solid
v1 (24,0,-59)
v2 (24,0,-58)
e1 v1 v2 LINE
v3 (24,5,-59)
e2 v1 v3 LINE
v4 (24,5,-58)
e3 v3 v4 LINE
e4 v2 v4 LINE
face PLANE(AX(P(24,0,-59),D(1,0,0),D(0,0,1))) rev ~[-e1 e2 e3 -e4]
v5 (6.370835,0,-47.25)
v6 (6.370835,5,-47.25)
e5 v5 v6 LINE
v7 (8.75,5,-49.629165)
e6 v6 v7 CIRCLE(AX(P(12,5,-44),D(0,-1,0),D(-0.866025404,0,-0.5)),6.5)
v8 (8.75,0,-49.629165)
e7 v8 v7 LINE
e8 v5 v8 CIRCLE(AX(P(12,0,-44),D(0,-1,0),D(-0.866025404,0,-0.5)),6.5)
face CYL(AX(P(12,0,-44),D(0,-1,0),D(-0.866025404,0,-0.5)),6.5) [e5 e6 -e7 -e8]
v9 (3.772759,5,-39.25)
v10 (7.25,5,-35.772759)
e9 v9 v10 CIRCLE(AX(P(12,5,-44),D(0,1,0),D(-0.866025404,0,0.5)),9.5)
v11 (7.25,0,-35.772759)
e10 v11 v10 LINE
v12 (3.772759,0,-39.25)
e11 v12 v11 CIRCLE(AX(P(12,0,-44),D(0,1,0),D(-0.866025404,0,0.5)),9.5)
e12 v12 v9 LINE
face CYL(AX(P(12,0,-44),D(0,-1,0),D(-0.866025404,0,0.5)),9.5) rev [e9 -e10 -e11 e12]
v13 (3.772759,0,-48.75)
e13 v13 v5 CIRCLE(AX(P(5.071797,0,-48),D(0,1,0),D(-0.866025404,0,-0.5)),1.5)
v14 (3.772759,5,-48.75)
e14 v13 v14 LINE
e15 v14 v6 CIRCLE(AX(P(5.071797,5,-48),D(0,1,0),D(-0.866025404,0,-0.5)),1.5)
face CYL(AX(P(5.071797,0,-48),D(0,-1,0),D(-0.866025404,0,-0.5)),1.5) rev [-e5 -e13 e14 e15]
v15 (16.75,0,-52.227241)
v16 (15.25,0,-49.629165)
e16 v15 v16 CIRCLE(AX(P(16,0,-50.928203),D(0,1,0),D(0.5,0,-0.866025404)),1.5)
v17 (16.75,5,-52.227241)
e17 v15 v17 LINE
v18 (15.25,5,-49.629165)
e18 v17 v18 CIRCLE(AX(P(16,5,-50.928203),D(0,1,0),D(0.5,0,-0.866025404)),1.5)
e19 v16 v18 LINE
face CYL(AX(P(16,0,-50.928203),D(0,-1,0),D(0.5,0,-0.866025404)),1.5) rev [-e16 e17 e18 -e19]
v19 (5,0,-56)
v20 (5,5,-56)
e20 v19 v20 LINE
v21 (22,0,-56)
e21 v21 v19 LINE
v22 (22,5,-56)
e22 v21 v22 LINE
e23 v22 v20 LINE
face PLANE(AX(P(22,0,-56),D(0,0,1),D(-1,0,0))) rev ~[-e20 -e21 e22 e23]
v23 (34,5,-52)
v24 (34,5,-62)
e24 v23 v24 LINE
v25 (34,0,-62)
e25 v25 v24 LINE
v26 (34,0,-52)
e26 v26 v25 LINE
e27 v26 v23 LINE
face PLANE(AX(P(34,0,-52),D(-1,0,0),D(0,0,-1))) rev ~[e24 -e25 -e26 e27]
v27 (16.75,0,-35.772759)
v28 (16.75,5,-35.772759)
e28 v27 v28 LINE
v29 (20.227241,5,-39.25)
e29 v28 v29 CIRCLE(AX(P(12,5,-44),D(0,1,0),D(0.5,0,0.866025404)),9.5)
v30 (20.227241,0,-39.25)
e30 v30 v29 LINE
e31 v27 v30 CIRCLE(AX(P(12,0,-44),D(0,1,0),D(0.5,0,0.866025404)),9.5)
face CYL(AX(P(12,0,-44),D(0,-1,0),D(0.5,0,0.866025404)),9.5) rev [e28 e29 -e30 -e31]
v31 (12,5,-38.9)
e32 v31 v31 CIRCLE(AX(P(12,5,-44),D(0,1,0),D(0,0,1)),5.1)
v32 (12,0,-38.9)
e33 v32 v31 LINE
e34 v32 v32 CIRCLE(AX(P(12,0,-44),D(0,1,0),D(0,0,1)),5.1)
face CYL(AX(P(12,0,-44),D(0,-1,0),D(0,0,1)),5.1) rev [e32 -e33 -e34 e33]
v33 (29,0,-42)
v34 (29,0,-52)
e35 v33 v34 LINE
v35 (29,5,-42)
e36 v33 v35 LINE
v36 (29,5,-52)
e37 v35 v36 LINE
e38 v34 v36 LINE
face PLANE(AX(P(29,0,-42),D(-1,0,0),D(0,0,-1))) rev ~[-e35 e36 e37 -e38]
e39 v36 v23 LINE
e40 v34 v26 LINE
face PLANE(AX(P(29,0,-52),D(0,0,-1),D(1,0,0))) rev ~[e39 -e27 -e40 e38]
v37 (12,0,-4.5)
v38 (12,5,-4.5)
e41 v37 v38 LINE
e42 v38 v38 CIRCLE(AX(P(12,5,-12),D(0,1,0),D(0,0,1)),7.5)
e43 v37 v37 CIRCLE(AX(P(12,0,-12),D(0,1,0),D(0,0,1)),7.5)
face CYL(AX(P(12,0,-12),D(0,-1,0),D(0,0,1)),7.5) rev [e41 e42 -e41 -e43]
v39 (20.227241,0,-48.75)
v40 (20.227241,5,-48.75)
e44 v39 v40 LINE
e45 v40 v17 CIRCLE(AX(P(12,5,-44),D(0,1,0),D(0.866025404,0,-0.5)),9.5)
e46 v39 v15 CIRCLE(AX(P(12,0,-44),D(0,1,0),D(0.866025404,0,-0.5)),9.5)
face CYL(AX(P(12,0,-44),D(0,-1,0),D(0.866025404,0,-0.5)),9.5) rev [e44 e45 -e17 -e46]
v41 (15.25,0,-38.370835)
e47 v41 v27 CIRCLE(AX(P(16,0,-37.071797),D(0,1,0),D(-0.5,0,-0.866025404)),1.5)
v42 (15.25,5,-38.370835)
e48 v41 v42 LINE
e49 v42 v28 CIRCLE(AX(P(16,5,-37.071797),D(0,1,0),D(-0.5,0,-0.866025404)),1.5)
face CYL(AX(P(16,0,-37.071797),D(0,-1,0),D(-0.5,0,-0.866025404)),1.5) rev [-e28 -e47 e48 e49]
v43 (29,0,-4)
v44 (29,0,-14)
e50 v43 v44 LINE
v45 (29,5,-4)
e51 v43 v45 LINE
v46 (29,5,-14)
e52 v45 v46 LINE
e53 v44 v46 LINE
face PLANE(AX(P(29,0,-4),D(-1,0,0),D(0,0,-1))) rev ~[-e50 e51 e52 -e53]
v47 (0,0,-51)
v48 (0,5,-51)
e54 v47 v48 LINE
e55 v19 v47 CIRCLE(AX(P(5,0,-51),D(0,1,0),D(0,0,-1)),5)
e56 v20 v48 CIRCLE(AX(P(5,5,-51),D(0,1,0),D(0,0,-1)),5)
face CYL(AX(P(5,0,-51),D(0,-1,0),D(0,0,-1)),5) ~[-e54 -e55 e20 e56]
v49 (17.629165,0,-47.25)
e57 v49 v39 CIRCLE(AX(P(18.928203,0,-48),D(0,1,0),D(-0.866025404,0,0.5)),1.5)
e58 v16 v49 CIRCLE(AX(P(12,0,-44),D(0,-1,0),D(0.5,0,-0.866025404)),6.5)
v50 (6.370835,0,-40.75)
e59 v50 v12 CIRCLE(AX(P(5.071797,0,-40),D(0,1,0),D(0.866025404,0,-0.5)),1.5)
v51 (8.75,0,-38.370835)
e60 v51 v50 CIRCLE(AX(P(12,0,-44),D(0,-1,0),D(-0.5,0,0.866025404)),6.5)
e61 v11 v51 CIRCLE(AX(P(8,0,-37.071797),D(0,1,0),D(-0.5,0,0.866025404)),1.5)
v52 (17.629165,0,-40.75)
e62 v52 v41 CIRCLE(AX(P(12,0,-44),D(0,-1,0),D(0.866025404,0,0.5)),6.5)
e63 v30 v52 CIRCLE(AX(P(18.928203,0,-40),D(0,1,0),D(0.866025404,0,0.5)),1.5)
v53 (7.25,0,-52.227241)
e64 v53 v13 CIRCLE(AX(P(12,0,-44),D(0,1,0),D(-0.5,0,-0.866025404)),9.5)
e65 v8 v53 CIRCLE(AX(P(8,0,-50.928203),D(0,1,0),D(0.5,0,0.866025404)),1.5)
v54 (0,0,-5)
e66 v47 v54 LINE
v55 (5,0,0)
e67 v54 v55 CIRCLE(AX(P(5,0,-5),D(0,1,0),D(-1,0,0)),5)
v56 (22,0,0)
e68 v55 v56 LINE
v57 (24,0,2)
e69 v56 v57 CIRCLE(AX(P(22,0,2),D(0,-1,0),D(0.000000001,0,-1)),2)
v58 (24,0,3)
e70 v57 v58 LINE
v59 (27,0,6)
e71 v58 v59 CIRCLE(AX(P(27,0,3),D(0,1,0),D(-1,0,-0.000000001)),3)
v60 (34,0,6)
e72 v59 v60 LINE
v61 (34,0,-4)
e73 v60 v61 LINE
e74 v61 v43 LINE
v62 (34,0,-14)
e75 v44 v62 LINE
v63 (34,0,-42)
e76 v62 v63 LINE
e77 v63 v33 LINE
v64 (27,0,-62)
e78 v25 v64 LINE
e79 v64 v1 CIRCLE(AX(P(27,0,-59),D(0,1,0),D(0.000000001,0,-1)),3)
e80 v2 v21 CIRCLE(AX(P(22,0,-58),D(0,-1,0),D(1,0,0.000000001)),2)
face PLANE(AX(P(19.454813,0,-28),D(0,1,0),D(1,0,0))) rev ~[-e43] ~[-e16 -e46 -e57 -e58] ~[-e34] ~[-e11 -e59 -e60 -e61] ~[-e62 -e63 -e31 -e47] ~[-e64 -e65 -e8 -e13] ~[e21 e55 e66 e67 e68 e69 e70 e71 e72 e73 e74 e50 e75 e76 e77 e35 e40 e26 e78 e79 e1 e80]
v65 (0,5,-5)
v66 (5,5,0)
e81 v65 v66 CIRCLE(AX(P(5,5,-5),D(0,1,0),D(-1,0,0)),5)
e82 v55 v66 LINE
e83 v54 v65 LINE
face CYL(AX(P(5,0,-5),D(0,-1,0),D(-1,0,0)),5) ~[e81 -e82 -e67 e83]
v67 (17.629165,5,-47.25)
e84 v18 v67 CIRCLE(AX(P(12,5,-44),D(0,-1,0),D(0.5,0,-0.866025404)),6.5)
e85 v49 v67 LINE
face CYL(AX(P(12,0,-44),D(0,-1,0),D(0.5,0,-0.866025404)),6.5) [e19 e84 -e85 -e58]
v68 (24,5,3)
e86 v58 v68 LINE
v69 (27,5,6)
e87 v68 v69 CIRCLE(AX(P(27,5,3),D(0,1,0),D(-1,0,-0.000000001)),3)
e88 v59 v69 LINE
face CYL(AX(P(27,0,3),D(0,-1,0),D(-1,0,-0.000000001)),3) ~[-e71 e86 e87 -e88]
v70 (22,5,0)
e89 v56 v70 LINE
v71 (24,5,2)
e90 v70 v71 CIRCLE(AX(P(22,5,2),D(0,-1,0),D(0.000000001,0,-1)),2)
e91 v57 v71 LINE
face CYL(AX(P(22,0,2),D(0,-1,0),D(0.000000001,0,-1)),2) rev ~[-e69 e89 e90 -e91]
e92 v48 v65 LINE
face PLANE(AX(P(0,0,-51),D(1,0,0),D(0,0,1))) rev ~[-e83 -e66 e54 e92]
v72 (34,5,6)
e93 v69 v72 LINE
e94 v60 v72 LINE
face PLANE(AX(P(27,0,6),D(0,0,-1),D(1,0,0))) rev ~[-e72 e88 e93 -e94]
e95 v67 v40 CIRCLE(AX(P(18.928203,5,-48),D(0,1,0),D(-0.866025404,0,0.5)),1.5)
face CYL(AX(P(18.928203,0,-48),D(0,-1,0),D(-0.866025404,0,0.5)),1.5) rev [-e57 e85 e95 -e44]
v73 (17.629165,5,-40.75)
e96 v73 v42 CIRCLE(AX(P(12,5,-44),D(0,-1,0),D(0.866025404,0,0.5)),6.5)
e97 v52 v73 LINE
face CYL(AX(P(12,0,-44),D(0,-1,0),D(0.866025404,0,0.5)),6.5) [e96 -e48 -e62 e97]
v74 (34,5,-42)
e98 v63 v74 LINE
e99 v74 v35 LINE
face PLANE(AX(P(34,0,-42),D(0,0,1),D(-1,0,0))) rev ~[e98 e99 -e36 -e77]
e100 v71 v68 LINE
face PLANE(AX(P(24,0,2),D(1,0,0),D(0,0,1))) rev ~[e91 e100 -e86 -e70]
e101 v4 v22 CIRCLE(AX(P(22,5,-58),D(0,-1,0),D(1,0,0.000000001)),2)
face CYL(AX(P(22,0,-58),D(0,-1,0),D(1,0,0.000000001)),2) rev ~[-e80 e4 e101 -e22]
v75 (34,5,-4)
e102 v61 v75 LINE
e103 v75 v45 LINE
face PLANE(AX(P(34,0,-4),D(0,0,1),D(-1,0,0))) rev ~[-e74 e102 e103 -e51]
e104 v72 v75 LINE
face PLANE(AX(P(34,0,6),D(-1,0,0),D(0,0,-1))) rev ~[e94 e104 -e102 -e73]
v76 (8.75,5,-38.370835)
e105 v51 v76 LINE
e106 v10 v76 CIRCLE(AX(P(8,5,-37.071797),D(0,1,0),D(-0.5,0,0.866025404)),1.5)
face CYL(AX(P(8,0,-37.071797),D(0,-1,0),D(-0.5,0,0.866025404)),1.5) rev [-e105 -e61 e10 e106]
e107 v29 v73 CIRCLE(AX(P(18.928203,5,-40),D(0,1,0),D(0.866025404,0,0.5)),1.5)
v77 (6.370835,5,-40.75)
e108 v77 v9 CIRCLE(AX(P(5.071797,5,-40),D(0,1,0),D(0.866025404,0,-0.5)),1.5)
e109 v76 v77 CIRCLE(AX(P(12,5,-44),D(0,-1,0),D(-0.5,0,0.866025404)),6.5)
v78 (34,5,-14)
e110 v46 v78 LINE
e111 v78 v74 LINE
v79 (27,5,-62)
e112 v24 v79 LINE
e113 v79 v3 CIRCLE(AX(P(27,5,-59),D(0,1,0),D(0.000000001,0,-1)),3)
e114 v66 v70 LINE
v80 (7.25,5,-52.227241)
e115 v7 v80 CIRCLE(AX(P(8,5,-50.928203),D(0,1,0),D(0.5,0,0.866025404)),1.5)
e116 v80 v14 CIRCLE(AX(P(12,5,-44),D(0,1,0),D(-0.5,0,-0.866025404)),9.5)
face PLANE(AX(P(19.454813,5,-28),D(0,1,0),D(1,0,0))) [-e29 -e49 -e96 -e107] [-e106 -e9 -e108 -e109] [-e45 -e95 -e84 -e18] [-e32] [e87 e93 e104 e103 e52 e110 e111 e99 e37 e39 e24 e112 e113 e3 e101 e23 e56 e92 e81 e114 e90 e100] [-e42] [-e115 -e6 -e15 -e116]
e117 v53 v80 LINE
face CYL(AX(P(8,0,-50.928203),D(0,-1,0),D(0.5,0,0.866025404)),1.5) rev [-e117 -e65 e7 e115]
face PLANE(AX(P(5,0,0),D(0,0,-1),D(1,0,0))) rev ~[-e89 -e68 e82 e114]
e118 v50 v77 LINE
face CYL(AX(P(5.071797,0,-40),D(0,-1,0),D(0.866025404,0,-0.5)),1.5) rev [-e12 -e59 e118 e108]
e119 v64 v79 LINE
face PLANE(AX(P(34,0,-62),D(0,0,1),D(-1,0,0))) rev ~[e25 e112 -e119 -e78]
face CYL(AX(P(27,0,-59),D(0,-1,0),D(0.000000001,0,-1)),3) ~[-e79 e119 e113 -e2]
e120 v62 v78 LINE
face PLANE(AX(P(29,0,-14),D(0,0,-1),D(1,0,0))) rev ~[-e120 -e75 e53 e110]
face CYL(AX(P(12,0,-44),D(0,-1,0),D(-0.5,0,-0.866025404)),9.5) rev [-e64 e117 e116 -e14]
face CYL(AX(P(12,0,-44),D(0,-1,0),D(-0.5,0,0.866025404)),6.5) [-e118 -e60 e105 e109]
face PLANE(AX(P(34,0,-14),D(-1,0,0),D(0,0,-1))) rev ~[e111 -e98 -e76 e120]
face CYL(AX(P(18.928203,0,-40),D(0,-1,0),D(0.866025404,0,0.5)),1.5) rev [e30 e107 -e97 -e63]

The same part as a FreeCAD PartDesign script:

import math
import FreeCAD as App
import Part
import Sketcher

doc = App.newDocument("Part")
params = doc.addObject("Spreadsheet::Sheet", "Params")
for row, (alias, value) in enumerate([
    ("sketch1_diameter", "15 mm"),
    ("sketch1_radius", "2 mm"),
    ("sketch1_radius2", "3 mm"),
    ("sketch1_radius3", "5 mm"),
    ("sketch1_diameter2", "10.2 mm"),
    ("pad1_length", "5 mm"),
], start=1):
    params.set(f"A{row}", alias)
    params.set(f"B{row}", "=" + value)
    params.setAlias(f"B{row}", alias)

body = doc.addObject("PartDesign::Body", "Body")

sketch1 = body.newObject("Sketcher::SketchObject", "Sketch")
sketch1.AttachmentSupport = (doc.getObject("XZ_Plane"), [""])
sketch1.MapMode = "FlatFace"
sketch1.addGeometry(Part.LineSegment(App.Vector(5, 0, 0), App.Vector(22, 0, 0)), False)
sketch1.addGeometry(Part.ArcOfCircle(Part.Circle(App.Vector(22, 2, 0), App.Vector(0, 0, 1), 2), math.radians(-90), math.radians(0)), False)
sketch1.addGeometry(Part.LineSegment(App.Vector(24, 2, 0), App.Vector(24, 3, 0)), False)
sketch1.addGeometry(Part.ArcOfCircle(Part.Circle(App.Vector(27, 3, 0), App.Vector(0, 0, 1), 3), math.radians(90), math.radians(180)), False)
sketch1.addGeometry(Part.LineSegment(App.Vector(27, 6, 0), App.Vector(34, 6, 0)), False)
sketch1.addGeometry(Part.LineSegment(App.Vector(34, 6, 0), App.Vector(34, -4, 0)), False)
sketch1.addGeometry(Part.LineSegment(App.Vector(34, -4, 0), App.Vector(29, -4, 0)), False)
sketch1.addGeometry(Part.LineSegment(App.Vector(29, -4, 0), App.Vector(29, -14, 0)), False)
sketch1.addGeometry(Part.LineSegment(App.Vector(29, -14, 0), App.Vector(34, -14, 0)), False)
sketch1.addGeometry(Part.LineSegment(App.Vector(34, -14, 0), App.Vector(34, -42, 0)), False)
sketch1.addGeometry(Part.LineSegment(App.Vector(34, -42, 0), App.Vector(29, -42, 0)), False)
sketch1.addGeometry(Part.LineSegment(App.Vector(29, -42, 0), App.Vector(29, -52, 0)), False)
sketch1.addGeometry(Part.LineSegment(App.Vector(29, -52, 0), App.Vector(34, -52, 0)), False)
sketch1.addGeometry(Part.LineSegment(App.Vector(34, -52, 0), App.Vector(34, -62, 0)), False)
sketch1.addGeometry(Part.LineSegment(App.Vector(34, -62, 0), App.Vector(27, -62, 0)), False)
sketch1.addGeometry(Part.ArcOfCircle(Part.Circle(App.Vector(27, -59, 0), App.Vector(0, 0, 1), 3), math.radians(180), math.radians(270)), False)
sketch1.addGeometry(Part.LineSegment(App.Vector(24, -59, 0), App.Vector(24, -58, 0)), False)
sketch1.addGeometry(Part.ArcOfCircle(Part.Circle(App.Vector(22, -58, 0), App.Vector(0, 0, 1), 2), math.radians(0), math.radians(90)), False)
sketch1.addGeometry(Part.LineSegment(App.Vector(22, -56, 0), App.Vector(5, -56, 0)), False)
sketch1.addGeometry(Part.ArcOfCircle(Part.Circle(App.Vector(5, -51, 0), App.Vector(0, 0, 1), 5), math.radians(180), math.radians(270)), False)
sketch1.addGeometry(Part.LineSegment(App.Vector(0, -51, 0), App.Vector(0, -5, 0)), False)
sketch1.addGeometry(Part.ArcOfCircle(Part.Circle(App.Vector(5, -5, 0), App.Vector(0, 0, 1), 5), math.radians(90), math.radians(180)), False)
sketch1.addGeometry(Part.Circle(App.Vector(12, -12, 0), App.Vector(0, 0, 1), 7.5), False)
sketch1.addGeometry(Part.ArcOfCircle(Part.Circle(App.Vector(12, -44, 0), App.Vector(0, 0, 1), 9.5), math.radians(120), math.radians(150)), False)
sketch1.addGeometry(Part.ArcOfCircle(Part.Circle(App.Vector(5.1, -40, 0), App.Vector(0, 0, 1), 1.5), math.radians(150), math.radians(330)), False)
sketch1.addGeometry(Part.ArcOfCircle(Part.Circle(App.Vector(12, -44, 0), App.Vector(0, 0, 1), 6.5), math.radians(120), math.radians(150)), False)
sketch1.addGeometry(Part.ArcOfCircle(Part.Circle(App.Vector(8, -37.1, 0), App.Vector(0, 0, 1), 1.5), math.radians(-60), math.radians(120)), False)
sketch1.addGeometry(Part.ArcOfCircle(Part.Circle(App.Vector(12, -44, 0), App.Vector(0, 0, 1), 9.5), math.radians(-150), math.radians(-120)), False)
sketch1.addGeometry(Part.ArcOfCircle(Part.Circle(App.Vector(8, -50.9, 0), App.Vector(0, 0, 1), 1.5), math.radians(-120), math.radians(60)), False)
sketch1.addGeometry(Part.ArcOfCircle(Part.Circle(App.Vector(12, -44, 0), App.Vector(0, 0, 1), 6.5), math.radians(-150), math.radians(-120)), False)
sketch1.addGeometry(Part.ArcOfCircle(Part.Circle(App.Vector(5.1, -48, 0), App.Vector(0, 0, 1), 1.5), math.radians(30), math.radians(210)), False)
sketch1.addGeometry(Part.ArcOfCircle(Part.Circle(App.Vector(12, -44, 0), App.Vector(0, 0, 1), 9.5), math.radians(30), math.radians(60)), False)
sketch1.addGeometry(Part.ArcOfCircle(Part.Circle(App.Vector(16, -37.1, 0), App.Vector(0, 0, 1), 1.5), math.radians(60), math.radians(240)), False)
sketch1.addGeometry(Part.ArcOfCircle(Part.Circle(App.Vector(12, -44, 0), App.Vector(0, 0, 1), 6.5), math.radians(30), math.radians(60)), False)
sketch1.addGeometry(Part.ArcOfCircle(Part.Circle(App.Vector(18.9, -40, 0), App.Vector(0, 0, 1), 1.5), math.radians(-150), math.radians(30)), False)
sketch1.addGeometry(Part.Circle(App.Vector(12, -44, 0), App.Vector(0, 0, 1), 5.1), False)
sketch1.addGeometry(Part.ArcOfCircle(Part.Circle(App.Vector(12, -44, 0), App.Vector(0, 0, 1), 9.5), math.radians(-60), math.radians(-30)), False)
sketch1.addGeometry(Part.ArcOfCircle(Part.Circle(App.Vector(18.9, -48, 0), App.Vector(0, 0, 1), 1.5), math.radians(-30), math.radians(150)), False)
sketch1.addGeometry(Part.ArcOfCircle(Part.Circle(App.Vector(12, -44, 0), App.Vector(0, 0, 1), 6.5), math.radians(-60), math.radians(-30)), False)
sketch1.addGeometry(Part.ArcOfCircle(Part.Circle(App.Vector(16, -50.9, 0), App.Vector(0, 0, 1), 1.5), math.radians(120), math.radians(300)), False)
sketch1.addConstraint(Sketcher.Constraint("Tangent", 0, 2, 1, 1))
sketch1.addConstraint(Sketcher.Constraint("Tangent", 1, 2, 2, 1))
sketch1.addConstraint(Sketcher.Constraint("Tangent", 2, 2, 3, 2))
sketch1.addConstraint(Sketcher.Constraint("Tangent", 3, 1, 4, 1))
sketch1.addConstraint(Sketcher.Constraint("Coincident", 4, 2, 5, 1))
sketch1.addConstraint(Sketcher.Constraint("Coincident", 5, 2, 6, 1))
sketch1.addConstraint(Sketcher.Constraint("Coincident", 6, 2, 7, 1))
sketch1.addConstraint(Sketcher.Constraint("Coincident", 7, 2, 8, 1))
sketch1.addConstraint(Sketcher.Constraint("Coincident", 8, 2, 9, 1))
sketch1.addConstraint(Sketcher.Constraint("Coincident", 9, 2, 10, 1))
sketch1.addConstraint(Sketcher.Constraint("Coincident", 10, 2, 11, 1))
sketch1.addConstraint(Sketcher.Constraint("Coincident", 11, 2, 12, 1))
sketch1.addConstraint(Sketcher.Constraint("Coincident", 12, 2, 13, 1))
sketch1.addConstraint(Sketcher.Constraint("Coincident", 13, 2, 14, 1))
sketch1.addConstraint(Sketcher.Constraint("Tangent", 14, 2, 15, 2))
sketch1.addConstraint(Sketcher.Constraint("Tangent", 15, 1, 16, 1))
sketch1.addConstraint(Sketcher.Constraint("Tangent", 16, 2, 17, 1))
sketch1.addConstraint(Sketcher.Constraint("Tangent", 17, 2, 18, 1))
sketch1.addConstraint(Sketcher.Constraint("Tangent", 18, 2, 19, 2))
sketch1.addConstraint(Sketcher.Constraint("Tangent", 19, 1, 20, 1))
sketch1.addConstraint(Sketcher.Constraint("Tangent", 20, 2, 21, 2))
sketch1.addConstraint(Sketcher.Constraint("Tangent", 21, 1, 0, 1))
sketch1.addConstraint(Sketcher.Constraint("Tangent", 23, 2, 24, 1))
sketch1.addConstraint(Sketcher.Constraint("Tangent", 24, 2, 25, 2))
sketch1.addConstraint(Sketcher.Constraint("Tangent", 25, 1, 26, 1))
sketch1.addConstraint(Sketcher.Constraint("Tangent", 26, 2, 23, 1))
sketch1.addConstraint(Sketcher.Constraint("Tangent", 27, 2, 28, 1))
sketch1.addConstraint(Sketcher.Constraint("Tangent", 28, 2, 29, 2))
sketch1.addConstraint(Sketcher.Constraint("Tangent", 29, 1, 30, 1))
sketch1.addConstraint(Sketcher.Constraint("Tangent", 30, 2, 27, 1))
sketch1.addConstraint(Sketcher.Constraint("Tangent", 31, 2, 32, 1))
sketch1.addConstraint(Sketcher.Constraint("Tangent", 32, 2, 33, 2))
sketch1.addConstraint(Sketcher.Constraint("Tangent", 33, 1, 34, 1))
sketch1.addConstraint(Sketcher.Constraint("Tangent", 34, 2, 31, 1))
sketch1.addConstraint(Sketcher.Constraint("Tangent", 36, 2, 37, 1))
sketch1.addConstraint(Sketcher.Constraint("Tangent", 37, 2, 38, 2))
sketch1.addConstraint(Sketcher.Constraint("Tangent", 38, 1, 39, 1))
sketch1.addConstraint(Sketcher.Constraint("Tangent", 39, 2, 36, 1))
sketch1.addConstraint(Sketcher.Constraint("Horizontal", 0))
sketch1.addConstraint(Sketcher.Constraint("Vertical", 2))
sketch1.addConstraint(Sketcher.Constraint("Horizontal", 4))
sketch1.addConstraint(Sketcher.Constraint("Vertical", 5))
sketch1.addConstraint(Sketcher.Constraint("Horizontal", 6))
sketch1.addConstraint(Sketcher.Constraint("Vertical", 7))
sketch1.addConstraint(Sketcher.Constraint("Horizontal", 8))
sketch1.addConstraint(Sketcher.Constraint("Vertical", 9))
sketch1.addConstraint(Sketcher.Constraint("Horizontal", 10))
sketch1.addConstraint(Sketcher.Constraint("Vertical", 11))
sketch1.addConstraint(Sketcher.Constraint("Horizontal", 12))
sketch1.addConstraint(Sketcher.Constraint("Vertical", 13))
sketch1.addConstraint(Sketcher.Constraint("Horizontal", 14))
sketch1.addConstraint(Sketcher.Constraint("Vertical", 16))
sketch1.addConstraint(Sketcher.Constraint("Horizontal", 18))
sketch1.addConstraint(Sketcher.Constraint("Vertical", 20))
sketch1.addConstraint(Sketcher.Constraint("Coincident", 25, 3, 23, 3))
sketch1.addConstraint(Sketcher.Constraint("Coincident", 27, 3, 23, 3))
sketch1.addConstraint(Sketcher.Constraint("Coincident", 29, 3, 23, 3))
sketch1.addConstraint(Sketcher.Constraint("Coincident", 31, 3, 23, 3))
sketch1.addConstraint(Sketcher.Constraint("Coincident", 33, 3, 23, 3))
sketch1.addConstraint(Sketcher.Constraint("Coincident", 35, 3, 23, 3))
sketch1.addConstraint(Sketcher.Constraint("Coincident", 36, 3, 23, 3))
sketch1.addConstraint(Sketcher.Constraint("Coincident", 38, 3, 23, 3))
sketch1.addConstraint(Sketcher.Constraint("Equal", 3, 15))
sketch1.addConstraint(Sketcher.Constraint("Equal", 1, 17))
sketch1.addConstraint(Sketcher.Constraint("Equal", 19, 21))
sketch1.addConstraint(Sketcher.Constraint("Equal", 23, 27))
sketch1.addConstraint(Sketcher.Constraint("Equal", 26, 28))
sketch1.addConstraint(Sketcher.Constraint("Equal", 27, 31))
sketch1.addConstraint(Sketcher.Constraint("Equal", 30, 32))
sketch1.addConstraint(Sketcher.Constraint("Equal", 31, 36))
sketch1.addConstraint(Sketcher.Constraint("Equal", 34, 37))
sketch1.addConstraint(Sketcher.Constraint("PointOnObject", 0, 2, -1))
sketch1.addConstraint(Sketcher.Constraint("PointOnObject", 19, 1, -2))
sketch1.addConstraint(Sketcher.Constraint("Horizontal", 26, 3, 32, 3))
sketch1.addConstraint(Sketcher.Constraint("Horizontal", 24, 3, 34, 3))
sketch1.addConstraint(Sketcher.Constraint("Horizontal", 30, 3, 37, 3))
sketch1.addConstraint(Sketcher.Constraint("Horizontal", 28, 3, 39, 3))
sketch1.addConstraint(Sketcher.Constraint("Vertical", 3, 3, 15, 3))
sketch1.addConstraint(Sketcher.Constraint("Vertical", 22, 3, 23, 3))
sketch1.addConstraint(Sketcher.Constraint("Vertical", 26, 3, 28, 3))
sketch1.addConstraint(Sketcher.Constraint("Vertical", 24, 3, 30, 3))
sketch1.addConstraint(Sketcher.Constraint("Vertical", 5, 2, 8, 2))
sketch1.addConstraint(Sketcher.Constraint("Vertical", 7, 2, 10, 2))
sketch1.addConstraint(Sketcher.Constraint("Vertical", 9, 2, 12, 2))
sketch1.addConstraint(Sketcher.Constraint("Equal", 5, 7))
sketch1.addConstraint(Sketcher.Constraint("Equal", 7, 11))
sketch1.addConstraint(Sketcher.Constraint("Equal", 11, 13))
sketch1.addConstraint(Sketcher.Constraint("Equal", 2, 16))
sketch1.addConstraint(Sketcher.Constraint("Diameter", 22, 15.0))
sketch1.addConstraint(Sketcher.Constraint("Radius", 1, 2.0))
sketch1.addConstraint(Sketcher.Constraint("Radius", 3, 3.0))
sketch1.addConstraint(Sketcher.Constraint("Radius", 19, 5.0))
sketch1.addConstraint(Sketcher.Constraint("Diameter", 35, 10.2))
sketch1.addConstraint(Sketcher.Constraint("Radius", 23, 9.5))
sketch1.addConstraint(Sketcher.Constraint("Radius", 24, 1.5))
sketch1.addConstraint(Sketcher.Constraint("DistanceX", 0, 1, 0, 2, 17.0))
sketch1.addConstraint(Sketcher.Constraint("DistanceX", 4, 1, 4, 2, 7.0))
sketch1.addConstraint(Sketcher.Constraint("DistanceX", 6, 2, 6, 1, 5.0))
sketch1.addConstraint(Sketcher.Constraint("DistanceY", 2, 1, 2, 2, 1.0))
sketch1.addConstraint(Sketcher.Constraint("DistanceY", 5, 2, 5, 1, 10.0))
sketch1.addConstraint(Sketcher.Constraint("DistanceY", 9, 2, 9, 1, 28.0))
sketch1.addConstraint(Sketcher.Constraint("DistanceX", -1, 1, 22, 3, 12.0))
sketch1.addConstraint(Sketcher.Constraint("DistanceY", 22, 3, -1, 1, 12.0))
sketch1.addConstraint(Sketcher.Constraint("DistanceY", 23, 3, -1, 1, 44.0))
sketch1.addConstraint(Sketcher.Constraint("DistanceY", 24, 3, -1, 1, 40.0))
sketch1.addConstraint(Sketcher.Constraint("DistanceX", -1, 1, 26, 3, 8.0))
sketch1.setExpression("Constraints[88]", "Params.sketch1_diameter")
sketch1.setExpression("Constraints[89]", "Params.sketch1_radius")
sketch1.setExpression("Constraints[90]", "Params.sketch1_radius2")
sketch1.setExpression("Constraints[91]", "Params.sketch1_radius3")
sketch1.setExpression("Constraints[92]", "Params.sketch1_diameter2")
pad1 = body.newObject("PartDesign::Pad", "Pad")
pad1.Profile = sketch1
pad1.setExpression("Length", "Params.pad1_length")
pad1.Reversed = True

doc.recompute()
